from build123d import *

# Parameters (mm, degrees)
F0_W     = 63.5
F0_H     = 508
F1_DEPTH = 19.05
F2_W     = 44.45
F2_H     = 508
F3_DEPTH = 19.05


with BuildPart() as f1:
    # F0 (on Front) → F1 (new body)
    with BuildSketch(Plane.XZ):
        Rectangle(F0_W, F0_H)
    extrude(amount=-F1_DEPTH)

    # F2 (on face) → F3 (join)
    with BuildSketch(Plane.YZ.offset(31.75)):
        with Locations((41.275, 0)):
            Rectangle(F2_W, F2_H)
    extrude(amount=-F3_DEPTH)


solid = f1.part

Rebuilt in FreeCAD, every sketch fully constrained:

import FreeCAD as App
import Part
import Sketcher
from FreeCAD import Vector
Q = App.Units.Quantity

doc = App.newDocument("Part")
body = doc.addObject("PartDesign::Body", "Body")

# Sketch on XZ plane
sketch1 = body.newObject("Sketcher::SketchObject", "Sketch")
sketch1.AttachmentSupport = (doc.getObject("XZ_Plane"), [""])
sketch1.MapMode = "FlatFace"
sketch1.addGeometry([
    Part.LineSegment(Vector(-32, 254, 0), Vector(-32, -254, 0)),
    Part.LineSegment(Vector(-32, -254, 0), Vector(32, -254, 0)),
    Part.LineSegment(Vector(32, -254, 0), Vector(32, 254, 0)),
    Part.LineSegment(Vector(32, 254, 0), Vector(-32, 254, 0)),
], False)
sketch1.addConstraint([
    Sketcher.Constraint("Coincident", 0, 2, 1, 1),
    Sketcher.Constraint("Coincident", 1, 2, 2, 1),
    Sketcher.Constraint("Coincident", 2, 2, 3, 1),
    Sketcher.Constraint("Coincident", 3, 2, 0, 1),
    Sketcher.Constraint("Vertical", 0),
    Sketcher.Constraint("Horizontal", 1),
    Sketcher.Constraint("Vertical", 2),
    Sketcher.Constraint("Horizontal", 3),
    Sketcher.Constraint("Symmetric", 0, 2, 2, 2, -1, 1),
    Sketcher.Constraint("DistanceY", 0, 2, 0, 1, Q("20 in")),
    Sketcher.Constraint("DistanceX", 1, 1, 1, 2, Q("2.5 in")),
])
pad1 = body.newObject("PartDesign::Pad", "Pad")
pad1.Profile = sketch1
pad1.Length = Q("0.75 in")
pad1.Reversed = True

# Sketch on YZ plane
sketch2 = body.newObject("Sketcher::SketchObject", "Sketch001")
sketch2.AttachmentSupport = (doc.getObject("YZ_Plane"), [""])
sketch2.MapMode = "FlatFace"
sketch2.AttachmentOffset = App.Placement(Vector(0, 0, 1.25 * 25.4), App.Rotation())
sketch2.addGeometry([
    Part.LineSegment(Vector(19, 254, 0), Vector(19, -254, 0)),
    Part.LineSegment(Vector(19, -254, 0), Vector(64, -254, 0)),
    Part.LineSegment(Vector(64, -254, 0), Vector(64, 254, 0)),
    Part.LineSegment(Vector(64, 254, 0), Vector(19, 254, 0)),
], False)
sketch2.addConstraint([
    Sketcher.Constraint("Coincident", 0, 2, 1, 1),
    Sketcher.Constraint("Coincident", 1, 2, 2, 1),
    Sketcher.Constraint("Coincident", 2, 2, 3, 1),
    Sketcher.Constraint("Coincident", 3, 2, 0, 1),
    Sketcher.Constraint("Vertical", 0),
    Sketcher.Constraint("Horizontal", 1),
    Sketcher.Constraint("Vertical", 2),
    Sketcher.Constraint("Horizontal", 3),
    Sketcher.Constraint("DistanceY", 0, 2, 0, 1, Q("20 in")),
    Sketcher.Constraint("DistanceY", 0, 2, -1, 1, Q("10 in")),
    Sketcher.Constraint("DistanceX", 1, 1, 1, 2, Q("1.75 in")),
    Sketcher.Constraint("DistanceX", -1, 1, 1, 2, Q("2.5 in")),
])
pad2 = body.newObject("PartDesign::Pad", "Pad001")
pad2.Profile = sketch2
pad2.Length = Q("0.75 in")
pad2.Reversed = True

doc.recompute()
